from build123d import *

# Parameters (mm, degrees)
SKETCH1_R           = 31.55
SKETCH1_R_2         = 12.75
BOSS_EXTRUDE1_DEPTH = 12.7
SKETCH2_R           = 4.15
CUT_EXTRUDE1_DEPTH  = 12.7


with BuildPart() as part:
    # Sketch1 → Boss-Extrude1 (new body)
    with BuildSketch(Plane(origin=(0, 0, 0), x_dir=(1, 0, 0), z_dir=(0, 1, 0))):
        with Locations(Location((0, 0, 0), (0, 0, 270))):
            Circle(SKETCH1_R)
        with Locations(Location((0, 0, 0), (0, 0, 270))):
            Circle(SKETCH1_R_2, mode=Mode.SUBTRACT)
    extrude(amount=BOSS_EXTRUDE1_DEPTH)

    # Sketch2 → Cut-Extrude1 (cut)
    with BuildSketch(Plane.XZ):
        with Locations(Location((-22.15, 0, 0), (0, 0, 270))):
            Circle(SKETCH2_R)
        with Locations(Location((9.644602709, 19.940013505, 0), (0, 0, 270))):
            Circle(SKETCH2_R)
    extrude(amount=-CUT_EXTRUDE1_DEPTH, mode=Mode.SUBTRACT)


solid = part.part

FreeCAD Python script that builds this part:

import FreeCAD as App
import Part
import Sketcher

doc = App.newDocument("Part")
body = doc.addObject("PartDesign::Body", "Body")

# Sketch on XZ plane
sketch1 = body.newObject("Sketcher::SketchObject", "Sketch")
sketch1.AttachmentSupport = (doc.getObject("XZ_Plane"), [""])
sketch1.MapMode = "FlatFace"
sketch1.addGeometry([
    Part.Circle(App.Vector(0, 0, 0), App.Vector(0, 0, 1), 32),
    Part.Circle(App.Vector(0, 0, 0), App.Vector(0, 0, 1), 13),
], False)
sketch1.addConstraint([
    Sketcher.Constraint("Coincident", 0, 3, -1, 1),
    Sketcher.Constraint("Coincident", 1, 3, -1, 1),
    Sketcher.Constraint("Diameter", 0, 63.1),
    Sketcher.Constraint("Diameter", 1, 25.5),
])
pad1 = body.newObject("PartDesign::Pad", "Pad")
pad1.Profile = sketch1
pad1.Length = 12.7
pad1.Reversed = True

# Sketch on XZ plane
sketch2 = body.newObject("Sketcher::SketchObject", "Sketch001")
sketch2.AttachmentSupport = (doc.getObject("XZ_Plane"), [""])
sketch2.MapMode = "FlatFace"
sketch2.addGeometry([
    Part.Circle(App.Vector(-22.1, 0, 0), App.Vector(0, 0, 1), 4.2),
    Part.Circle(App.Vector(9.6, 19.9, 0), App.Vector(0, 0, 1), 4.2),
], False)
sketch2.addConstraint([
    Sketcher.Constraint("Equal", 0, 1),
    Sketcher.Constraint("PointOnObject", 0, 3, -1),
    Sketcher.Constraint("Diameter", 0, 8.3),
    Sketcher.Constraint("DistanceX", 0, 3, -1, 1, 22.15),
    Sketcher.Constraint("DistanceX", -1, 1, 1, 3, 9.644603),
    Sketcher.Constraint("DistanceY", -1, 1, 1, 3, 19.940014),
])
pocket1 = body.newObject("PartDesign::Pocket", "Pocket")
pocket1.Profile = sketch2
pocket1.Length = 12.7

doc.recompute()
